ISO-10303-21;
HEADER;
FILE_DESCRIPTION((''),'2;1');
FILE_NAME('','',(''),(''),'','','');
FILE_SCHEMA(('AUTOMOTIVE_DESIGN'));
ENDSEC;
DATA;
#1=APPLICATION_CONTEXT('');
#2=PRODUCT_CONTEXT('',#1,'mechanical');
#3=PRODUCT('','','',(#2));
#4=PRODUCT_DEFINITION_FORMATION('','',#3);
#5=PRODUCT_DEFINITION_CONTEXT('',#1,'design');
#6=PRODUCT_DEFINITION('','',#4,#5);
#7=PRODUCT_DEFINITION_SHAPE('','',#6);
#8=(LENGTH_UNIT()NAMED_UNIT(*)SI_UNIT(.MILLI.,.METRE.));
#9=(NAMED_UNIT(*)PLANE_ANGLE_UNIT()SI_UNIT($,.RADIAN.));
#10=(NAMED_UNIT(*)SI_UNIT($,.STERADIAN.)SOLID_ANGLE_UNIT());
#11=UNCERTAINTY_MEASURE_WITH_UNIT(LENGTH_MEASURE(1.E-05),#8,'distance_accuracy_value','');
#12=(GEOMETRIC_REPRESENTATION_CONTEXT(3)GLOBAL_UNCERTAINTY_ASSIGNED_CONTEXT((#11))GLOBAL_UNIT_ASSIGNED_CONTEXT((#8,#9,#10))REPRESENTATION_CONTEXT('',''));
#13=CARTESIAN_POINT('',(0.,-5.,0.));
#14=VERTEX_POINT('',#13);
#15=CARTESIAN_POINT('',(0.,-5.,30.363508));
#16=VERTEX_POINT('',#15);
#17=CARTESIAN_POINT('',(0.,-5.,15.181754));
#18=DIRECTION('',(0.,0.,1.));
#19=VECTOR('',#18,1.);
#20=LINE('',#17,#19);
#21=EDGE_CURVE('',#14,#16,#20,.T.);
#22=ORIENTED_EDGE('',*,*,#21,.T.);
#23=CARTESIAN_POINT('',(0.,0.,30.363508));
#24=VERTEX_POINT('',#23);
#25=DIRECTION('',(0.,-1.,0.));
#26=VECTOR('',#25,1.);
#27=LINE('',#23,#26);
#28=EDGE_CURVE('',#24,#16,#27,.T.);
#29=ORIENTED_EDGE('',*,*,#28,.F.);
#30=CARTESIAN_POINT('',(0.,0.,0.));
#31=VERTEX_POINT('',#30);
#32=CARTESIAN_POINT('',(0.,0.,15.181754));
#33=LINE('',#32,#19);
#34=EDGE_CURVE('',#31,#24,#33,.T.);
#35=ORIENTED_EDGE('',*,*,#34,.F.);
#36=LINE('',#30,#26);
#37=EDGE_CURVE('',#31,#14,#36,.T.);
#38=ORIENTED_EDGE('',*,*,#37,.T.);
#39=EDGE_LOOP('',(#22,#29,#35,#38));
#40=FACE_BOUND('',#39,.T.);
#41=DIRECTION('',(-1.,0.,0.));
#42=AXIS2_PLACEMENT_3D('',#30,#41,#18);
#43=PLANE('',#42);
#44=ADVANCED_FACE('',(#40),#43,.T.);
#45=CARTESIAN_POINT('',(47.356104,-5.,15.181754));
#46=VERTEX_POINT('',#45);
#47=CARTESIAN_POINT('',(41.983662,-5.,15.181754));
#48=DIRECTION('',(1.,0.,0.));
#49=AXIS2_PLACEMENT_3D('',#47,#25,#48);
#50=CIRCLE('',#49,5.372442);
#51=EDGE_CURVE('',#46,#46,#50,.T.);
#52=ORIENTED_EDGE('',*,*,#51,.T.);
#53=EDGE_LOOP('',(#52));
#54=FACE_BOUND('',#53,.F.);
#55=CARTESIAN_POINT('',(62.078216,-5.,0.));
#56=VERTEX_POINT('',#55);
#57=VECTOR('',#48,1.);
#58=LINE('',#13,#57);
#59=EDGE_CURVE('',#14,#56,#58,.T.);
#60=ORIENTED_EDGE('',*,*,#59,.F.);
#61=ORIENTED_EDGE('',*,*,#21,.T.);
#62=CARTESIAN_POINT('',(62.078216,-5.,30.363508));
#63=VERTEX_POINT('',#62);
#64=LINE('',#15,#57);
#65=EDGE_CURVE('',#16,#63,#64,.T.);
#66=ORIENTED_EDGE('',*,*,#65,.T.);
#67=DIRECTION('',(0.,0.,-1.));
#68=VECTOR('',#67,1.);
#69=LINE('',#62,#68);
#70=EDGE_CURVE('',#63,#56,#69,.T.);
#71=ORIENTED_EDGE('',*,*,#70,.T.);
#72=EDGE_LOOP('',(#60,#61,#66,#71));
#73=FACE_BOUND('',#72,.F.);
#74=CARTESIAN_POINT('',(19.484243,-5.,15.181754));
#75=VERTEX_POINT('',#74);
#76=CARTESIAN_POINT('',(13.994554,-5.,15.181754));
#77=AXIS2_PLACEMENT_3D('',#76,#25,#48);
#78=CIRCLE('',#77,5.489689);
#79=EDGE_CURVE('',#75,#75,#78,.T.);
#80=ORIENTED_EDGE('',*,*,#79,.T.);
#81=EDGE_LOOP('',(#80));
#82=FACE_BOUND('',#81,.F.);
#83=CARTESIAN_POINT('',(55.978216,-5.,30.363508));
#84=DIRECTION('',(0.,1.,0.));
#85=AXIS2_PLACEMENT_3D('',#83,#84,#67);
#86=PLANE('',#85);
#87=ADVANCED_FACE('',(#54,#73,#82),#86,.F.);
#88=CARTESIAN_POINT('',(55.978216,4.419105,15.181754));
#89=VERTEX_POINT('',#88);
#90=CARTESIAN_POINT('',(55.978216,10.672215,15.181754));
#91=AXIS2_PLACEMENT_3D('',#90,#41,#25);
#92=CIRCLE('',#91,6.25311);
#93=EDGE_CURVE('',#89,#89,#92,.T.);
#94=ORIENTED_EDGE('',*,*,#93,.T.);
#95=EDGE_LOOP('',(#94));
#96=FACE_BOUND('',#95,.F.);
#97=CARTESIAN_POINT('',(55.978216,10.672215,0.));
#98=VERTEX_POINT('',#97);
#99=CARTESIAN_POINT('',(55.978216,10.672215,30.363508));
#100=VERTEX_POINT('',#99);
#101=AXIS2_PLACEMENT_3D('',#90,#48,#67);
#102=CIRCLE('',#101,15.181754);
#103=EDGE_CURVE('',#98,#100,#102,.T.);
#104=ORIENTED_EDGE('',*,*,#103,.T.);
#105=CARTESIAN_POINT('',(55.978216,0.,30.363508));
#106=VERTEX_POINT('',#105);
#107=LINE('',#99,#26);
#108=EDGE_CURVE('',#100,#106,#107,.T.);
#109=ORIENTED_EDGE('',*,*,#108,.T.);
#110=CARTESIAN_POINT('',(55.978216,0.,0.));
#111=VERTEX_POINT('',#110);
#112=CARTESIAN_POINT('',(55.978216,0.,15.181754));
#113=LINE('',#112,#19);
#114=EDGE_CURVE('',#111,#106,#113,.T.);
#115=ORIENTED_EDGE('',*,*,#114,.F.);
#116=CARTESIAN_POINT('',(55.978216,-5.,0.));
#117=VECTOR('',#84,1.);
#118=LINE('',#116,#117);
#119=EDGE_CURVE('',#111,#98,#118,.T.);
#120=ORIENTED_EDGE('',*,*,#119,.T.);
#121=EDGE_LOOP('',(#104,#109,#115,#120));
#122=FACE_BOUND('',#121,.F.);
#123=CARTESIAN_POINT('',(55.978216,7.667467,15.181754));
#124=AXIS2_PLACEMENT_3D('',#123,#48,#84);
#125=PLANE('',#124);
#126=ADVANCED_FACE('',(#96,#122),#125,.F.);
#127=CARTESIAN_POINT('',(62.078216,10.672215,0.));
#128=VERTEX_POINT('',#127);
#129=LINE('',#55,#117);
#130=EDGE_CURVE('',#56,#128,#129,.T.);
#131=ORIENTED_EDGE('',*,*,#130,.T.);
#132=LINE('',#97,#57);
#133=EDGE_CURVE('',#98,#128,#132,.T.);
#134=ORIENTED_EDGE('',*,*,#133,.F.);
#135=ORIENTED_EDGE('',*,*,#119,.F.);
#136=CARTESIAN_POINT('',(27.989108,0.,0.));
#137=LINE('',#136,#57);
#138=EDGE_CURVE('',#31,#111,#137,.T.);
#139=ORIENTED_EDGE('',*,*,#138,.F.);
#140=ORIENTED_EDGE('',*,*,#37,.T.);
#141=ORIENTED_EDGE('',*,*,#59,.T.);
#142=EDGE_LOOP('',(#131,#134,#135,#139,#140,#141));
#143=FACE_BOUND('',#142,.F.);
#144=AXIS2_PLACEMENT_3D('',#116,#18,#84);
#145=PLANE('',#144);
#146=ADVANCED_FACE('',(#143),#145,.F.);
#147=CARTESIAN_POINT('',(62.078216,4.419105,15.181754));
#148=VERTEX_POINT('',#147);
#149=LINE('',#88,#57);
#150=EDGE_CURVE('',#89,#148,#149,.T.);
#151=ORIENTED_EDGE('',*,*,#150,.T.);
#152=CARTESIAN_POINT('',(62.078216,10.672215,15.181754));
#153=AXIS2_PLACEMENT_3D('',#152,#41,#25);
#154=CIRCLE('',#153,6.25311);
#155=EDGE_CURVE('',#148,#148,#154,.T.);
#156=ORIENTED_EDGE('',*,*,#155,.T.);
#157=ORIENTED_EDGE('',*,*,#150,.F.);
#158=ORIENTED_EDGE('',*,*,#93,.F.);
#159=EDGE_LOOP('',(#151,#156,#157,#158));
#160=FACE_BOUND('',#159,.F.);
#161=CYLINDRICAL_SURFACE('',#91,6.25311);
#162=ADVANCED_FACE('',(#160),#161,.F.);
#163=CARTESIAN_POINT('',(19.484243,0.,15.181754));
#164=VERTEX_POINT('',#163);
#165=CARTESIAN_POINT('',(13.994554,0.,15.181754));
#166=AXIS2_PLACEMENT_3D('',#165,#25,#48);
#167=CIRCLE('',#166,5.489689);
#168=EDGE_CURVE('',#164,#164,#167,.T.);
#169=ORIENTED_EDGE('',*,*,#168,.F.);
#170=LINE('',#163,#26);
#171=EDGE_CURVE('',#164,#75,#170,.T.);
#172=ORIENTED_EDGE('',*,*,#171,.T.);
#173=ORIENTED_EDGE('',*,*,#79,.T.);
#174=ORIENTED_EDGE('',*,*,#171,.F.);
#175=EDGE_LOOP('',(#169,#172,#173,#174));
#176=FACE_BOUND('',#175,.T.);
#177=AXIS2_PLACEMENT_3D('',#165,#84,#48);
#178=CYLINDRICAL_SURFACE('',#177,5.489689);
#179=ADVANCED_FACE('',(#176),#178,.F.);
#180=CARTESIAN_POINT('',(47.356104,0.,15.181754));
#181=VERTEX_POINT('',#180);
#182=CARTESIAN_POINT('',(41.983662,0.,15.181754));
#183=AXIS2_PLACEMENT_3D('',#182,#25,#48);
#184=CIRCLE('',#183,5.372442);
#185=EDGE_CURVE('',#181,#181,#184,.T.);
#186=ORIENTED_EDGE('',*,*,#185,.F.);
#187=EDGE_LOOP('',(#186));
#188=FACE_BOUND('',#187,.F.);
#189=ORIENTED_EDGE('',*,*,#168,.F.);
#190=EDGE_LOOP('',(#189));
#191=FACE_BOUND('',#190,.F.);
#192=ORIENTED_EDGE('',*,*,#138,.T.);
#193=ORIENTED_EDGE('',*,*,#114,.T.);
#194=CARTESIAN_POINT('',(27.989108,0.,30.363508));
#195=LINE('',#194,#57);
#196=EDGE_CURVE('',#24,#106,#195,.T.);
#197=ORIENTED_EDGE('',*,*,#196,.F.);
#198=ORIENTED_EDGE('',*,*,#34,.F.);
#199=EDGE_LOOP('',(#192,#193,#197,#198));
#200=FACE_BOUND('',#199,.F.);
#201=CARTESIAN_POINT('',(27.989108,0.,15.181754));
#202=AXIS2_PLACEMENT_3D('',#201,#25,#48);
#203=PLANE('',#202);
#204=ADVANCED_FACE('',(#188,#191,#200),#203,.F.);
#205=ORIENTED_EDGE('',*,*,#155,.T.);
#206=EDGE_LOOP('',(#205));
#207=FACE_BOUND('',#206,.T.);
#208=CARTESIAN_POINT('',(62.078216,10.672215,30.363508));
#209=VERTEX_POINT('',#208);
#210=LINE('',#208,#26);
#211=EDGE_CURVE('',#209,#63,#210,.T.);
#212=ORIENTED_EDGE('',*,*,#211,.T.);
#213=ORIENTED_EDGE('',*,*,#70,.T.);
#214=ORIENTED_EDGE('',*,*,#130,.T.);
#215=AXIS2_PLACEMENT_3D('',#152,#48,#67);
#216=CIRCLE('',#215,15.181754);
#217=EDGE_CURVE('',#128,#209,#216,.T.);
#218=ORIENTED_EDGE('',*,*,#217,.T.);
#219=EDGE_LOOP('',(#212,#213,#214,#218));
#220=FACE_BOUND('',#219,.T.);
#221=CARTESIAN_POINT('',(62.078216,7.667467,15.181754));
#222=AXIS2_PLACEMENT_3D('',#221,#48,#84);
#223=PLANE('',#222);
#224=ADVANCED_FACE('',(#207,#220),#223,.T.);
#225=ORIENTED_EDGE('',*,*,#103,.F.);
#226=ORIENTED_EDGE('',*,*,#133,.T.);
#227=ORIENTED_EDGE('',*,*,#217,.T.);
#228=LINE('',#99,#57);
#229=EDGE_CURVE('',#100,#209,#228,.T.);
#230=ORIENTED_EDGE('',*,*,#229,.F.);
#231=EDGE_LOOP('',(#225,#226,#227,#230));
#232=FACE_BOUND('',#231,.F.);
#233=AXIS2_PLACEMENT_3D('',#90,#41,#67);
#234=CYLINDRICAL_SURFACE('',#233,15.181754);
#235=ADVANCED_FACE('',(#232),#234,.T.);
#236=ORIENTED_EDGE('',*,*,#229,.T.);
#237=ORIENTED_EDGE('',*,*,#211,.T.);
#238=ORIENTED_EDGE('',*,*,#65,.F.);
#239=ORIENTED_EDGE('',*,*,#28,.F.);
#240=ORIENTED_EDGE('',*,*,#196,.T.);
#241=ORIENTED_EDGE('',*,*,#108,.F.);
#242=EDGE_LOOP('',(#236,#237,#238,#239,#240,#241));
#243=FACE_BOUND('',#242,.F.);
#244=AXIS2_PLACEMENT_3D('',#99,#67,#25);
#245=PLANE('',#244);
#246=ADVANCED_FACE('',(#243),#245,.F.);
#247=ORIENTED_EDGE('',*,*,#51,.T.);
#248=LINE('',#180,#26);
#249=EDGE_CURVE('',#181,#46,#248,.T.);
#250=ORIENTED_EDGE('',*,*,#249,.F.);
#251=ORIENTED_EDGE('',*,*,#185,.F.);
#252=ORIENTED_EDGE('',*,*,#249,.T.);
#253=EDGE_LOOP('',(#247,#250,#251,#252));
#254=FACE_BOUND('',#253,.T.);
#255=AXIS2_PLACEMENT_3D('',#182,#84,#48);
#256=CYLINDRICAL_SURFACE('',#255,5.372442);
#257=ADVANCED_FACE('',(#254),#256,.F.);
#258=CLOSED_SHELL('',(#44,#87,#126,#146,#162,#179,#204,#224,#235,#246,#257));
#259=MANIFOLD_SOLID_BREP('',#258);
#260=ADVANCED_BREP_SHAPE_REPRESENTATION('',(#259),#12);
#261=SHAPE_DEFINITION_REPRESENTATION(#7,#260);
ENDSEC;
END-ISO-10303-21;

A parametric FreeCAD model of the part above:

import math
import FreeCAD as App
import Part
import Sketcher
from FreeCAD import Vector

doc = App.newDocument("Part")
body = doc.addObject("PartDesign::Body", "Body")

# Sketch on XZ plane
sketch1 = doc.addObject("Sketcher::SketchObject", "Sketch")
body.addObject(sketch1)
sketch1.AttachmentSupport = (doc.XZ_Plane, [""])
sketch1.MapMode = "FlatFace"
sketch1.addGeometry([
    Part.LineSegment(Vector(0, 30, 0), Vector(0, 0, 0)),  # 0
    Part.LineSegment(Vector(0, 0, 0), Vector(56, 0, 0)),  # 1
    Part.LineSegment(Vector(56, 0, 0), Vector(56, 30, 0)),  # 2
    Part.LineSegment(Vector(56, 30, 0), Vector(0, 30, 0)),  # 3
    Part.Circle(Vector(14, 15, 0), Vector(0, 0, 1), 5),  # 4
    Part.Circle(Vector(42, 15, 0), Vector(0, 0, 1), 5),  # 5
], False)
sketch1.addConstraint([
    Sketcher.Constraint("Coincident", 0, 2, 1, 1),
    Sketcher.Constraint("Coincident", 1, 2, 2, 1),
    Sketcher.Constraint("Coincident", 2, 2, 3, 1),
    Sketcher.Constraint("Coincident", 3, 2, 0, 1),
    Sketcher.Constraint("Vertical", 0),
    Sketcher.Constraint("Horizontal", 1),
    Sketcher.Constraint("Vertical", 2),
    Sketcher.Constraint("Horizontal", 3),
    Sketcher.Constraint("Coincident", 0, 2, -1, 1),
    Sketcher.Constraint("Horizontal", 4, 3, 5, 3),
    Sketcher.Constraint("Diameter", 4, 10.979378),
    Sketcher.Constraint("Diameter", 5, 10.744884),
    Sketcher.Constraint("DistanceX", 1, 1, 1, 2, 55.978216),
    Sketcher.Constraint("DistanceY", 0, 2, 0, 1, 30.363508),
    Sketcher.Constraint("DistanceX", 4, 3, 5, 3, 27.989108),
    Sketcher.Constraint("DistanceX", -1, 1, 4, 3, 13.994554),
    Sketcher.Constraint("DistanceY", -1, 1, 4, 3, 15.181754),
])
pad1 = doc.addObject("PartDesign::Pad", "Pad")
body.addObject(pad1)
pad1.Profile = sketch1
pad1.Length = 5

# Sketch on YZ plane
sketch2 = doc.addObject("Sketcher::SketchObject", "Sketch001")
body.addObject(sketch2)
sketch2.AttachmentSupport = (doc.YZ_Plane, [""])
sketch2.MapMode = "FlatFace"
sketch2.AttachmentOffset = App.Placement(Vector(0, 0, 55.978216), App.Rotation())
sketch2.addGeometry([
    Part.LineSegment(Vector(11, 30, 0), Vector(-5, 30, 0)),
    Part.LineSegment(Vector(-5, 30, 0), Vector(-5, 0, 0)),
    Part.LineSegment(Vector(-5, 0, 0), Vector(11, 0, 0)),
    Part.ArcOfCircle(Part.Circle(Vector(11, 15, 0), Vector(0, 0, 1), 15), math.radians(-90), math.radians(90)),
], False)
sketch2.addConstraint([
    Sketcher.Constraint("Coincident", 0, 2, 1, 1),
    Sketcher.Constraint("Coincident", 1, 2, 2, 1),
    Sketcher.Constraint("Tangent", 2, 2, 3, 1),
    Sketcher.Constraint("Tangent", 3, 2, 0, 1),
    Sketcher.Constraint("Horizontal", 0),
    Sketcher.Constraint("Vertical", 1),
    Sketcher.Constraint("Horizontal", 2),
    Sketcher.Constraint("PointOnObject", 1, 2, -1),
    Sketcher.Constraint("DistanceX", 0, 2, -1, 1, 5.0),
    Sketcher.Constraint("Radius", 3, 15.181754),
    Sketcher.Constraint("DistanceX", 0, 2, 0, 1, 15.672215),
])
pad2 = doc.addObject("PartDesign::Pad", "Pad001")
body.addObject(pad2)
pad2.Profile = sketch2
pad2.Length = 6.1

# Sketch on YZ plane
sketch3 = doc.addObject("Sketcher::SketchObject", "Sketch002")
body.addObject(sketch3)
sketch3.AttachmentSupport = (doc.YZ_Plane, [""])
sketch3.MapMode = "FlatFace"
sketch3.AttachmentOffset = App.Placement(Vector(0, 0, 55.978216), App.Rotation())
sketch3.addGeometry(Part.Circle(Vector(11, 15, 0), Vector(0, 0, 1), 6), False)
sketch3.addConstraint([
    Sketcher.Constraint("Diameter", 0, 12.50622),
    Sketcher.Constraint("DistanceX", -1, 1, 0, 3, 10.672215),
    Sketcher.Constraint("DistanceY", -1, 1, 0, 3, 15.181754),
])
pocket1 = doc.addObject("PartDesign::Pocket", "Pocket")
body.addObject(pocket1)
pocket1.Profile = sketch3
pocket1.Length = 25
pocket1.Reversed = True

doc.recompute()
